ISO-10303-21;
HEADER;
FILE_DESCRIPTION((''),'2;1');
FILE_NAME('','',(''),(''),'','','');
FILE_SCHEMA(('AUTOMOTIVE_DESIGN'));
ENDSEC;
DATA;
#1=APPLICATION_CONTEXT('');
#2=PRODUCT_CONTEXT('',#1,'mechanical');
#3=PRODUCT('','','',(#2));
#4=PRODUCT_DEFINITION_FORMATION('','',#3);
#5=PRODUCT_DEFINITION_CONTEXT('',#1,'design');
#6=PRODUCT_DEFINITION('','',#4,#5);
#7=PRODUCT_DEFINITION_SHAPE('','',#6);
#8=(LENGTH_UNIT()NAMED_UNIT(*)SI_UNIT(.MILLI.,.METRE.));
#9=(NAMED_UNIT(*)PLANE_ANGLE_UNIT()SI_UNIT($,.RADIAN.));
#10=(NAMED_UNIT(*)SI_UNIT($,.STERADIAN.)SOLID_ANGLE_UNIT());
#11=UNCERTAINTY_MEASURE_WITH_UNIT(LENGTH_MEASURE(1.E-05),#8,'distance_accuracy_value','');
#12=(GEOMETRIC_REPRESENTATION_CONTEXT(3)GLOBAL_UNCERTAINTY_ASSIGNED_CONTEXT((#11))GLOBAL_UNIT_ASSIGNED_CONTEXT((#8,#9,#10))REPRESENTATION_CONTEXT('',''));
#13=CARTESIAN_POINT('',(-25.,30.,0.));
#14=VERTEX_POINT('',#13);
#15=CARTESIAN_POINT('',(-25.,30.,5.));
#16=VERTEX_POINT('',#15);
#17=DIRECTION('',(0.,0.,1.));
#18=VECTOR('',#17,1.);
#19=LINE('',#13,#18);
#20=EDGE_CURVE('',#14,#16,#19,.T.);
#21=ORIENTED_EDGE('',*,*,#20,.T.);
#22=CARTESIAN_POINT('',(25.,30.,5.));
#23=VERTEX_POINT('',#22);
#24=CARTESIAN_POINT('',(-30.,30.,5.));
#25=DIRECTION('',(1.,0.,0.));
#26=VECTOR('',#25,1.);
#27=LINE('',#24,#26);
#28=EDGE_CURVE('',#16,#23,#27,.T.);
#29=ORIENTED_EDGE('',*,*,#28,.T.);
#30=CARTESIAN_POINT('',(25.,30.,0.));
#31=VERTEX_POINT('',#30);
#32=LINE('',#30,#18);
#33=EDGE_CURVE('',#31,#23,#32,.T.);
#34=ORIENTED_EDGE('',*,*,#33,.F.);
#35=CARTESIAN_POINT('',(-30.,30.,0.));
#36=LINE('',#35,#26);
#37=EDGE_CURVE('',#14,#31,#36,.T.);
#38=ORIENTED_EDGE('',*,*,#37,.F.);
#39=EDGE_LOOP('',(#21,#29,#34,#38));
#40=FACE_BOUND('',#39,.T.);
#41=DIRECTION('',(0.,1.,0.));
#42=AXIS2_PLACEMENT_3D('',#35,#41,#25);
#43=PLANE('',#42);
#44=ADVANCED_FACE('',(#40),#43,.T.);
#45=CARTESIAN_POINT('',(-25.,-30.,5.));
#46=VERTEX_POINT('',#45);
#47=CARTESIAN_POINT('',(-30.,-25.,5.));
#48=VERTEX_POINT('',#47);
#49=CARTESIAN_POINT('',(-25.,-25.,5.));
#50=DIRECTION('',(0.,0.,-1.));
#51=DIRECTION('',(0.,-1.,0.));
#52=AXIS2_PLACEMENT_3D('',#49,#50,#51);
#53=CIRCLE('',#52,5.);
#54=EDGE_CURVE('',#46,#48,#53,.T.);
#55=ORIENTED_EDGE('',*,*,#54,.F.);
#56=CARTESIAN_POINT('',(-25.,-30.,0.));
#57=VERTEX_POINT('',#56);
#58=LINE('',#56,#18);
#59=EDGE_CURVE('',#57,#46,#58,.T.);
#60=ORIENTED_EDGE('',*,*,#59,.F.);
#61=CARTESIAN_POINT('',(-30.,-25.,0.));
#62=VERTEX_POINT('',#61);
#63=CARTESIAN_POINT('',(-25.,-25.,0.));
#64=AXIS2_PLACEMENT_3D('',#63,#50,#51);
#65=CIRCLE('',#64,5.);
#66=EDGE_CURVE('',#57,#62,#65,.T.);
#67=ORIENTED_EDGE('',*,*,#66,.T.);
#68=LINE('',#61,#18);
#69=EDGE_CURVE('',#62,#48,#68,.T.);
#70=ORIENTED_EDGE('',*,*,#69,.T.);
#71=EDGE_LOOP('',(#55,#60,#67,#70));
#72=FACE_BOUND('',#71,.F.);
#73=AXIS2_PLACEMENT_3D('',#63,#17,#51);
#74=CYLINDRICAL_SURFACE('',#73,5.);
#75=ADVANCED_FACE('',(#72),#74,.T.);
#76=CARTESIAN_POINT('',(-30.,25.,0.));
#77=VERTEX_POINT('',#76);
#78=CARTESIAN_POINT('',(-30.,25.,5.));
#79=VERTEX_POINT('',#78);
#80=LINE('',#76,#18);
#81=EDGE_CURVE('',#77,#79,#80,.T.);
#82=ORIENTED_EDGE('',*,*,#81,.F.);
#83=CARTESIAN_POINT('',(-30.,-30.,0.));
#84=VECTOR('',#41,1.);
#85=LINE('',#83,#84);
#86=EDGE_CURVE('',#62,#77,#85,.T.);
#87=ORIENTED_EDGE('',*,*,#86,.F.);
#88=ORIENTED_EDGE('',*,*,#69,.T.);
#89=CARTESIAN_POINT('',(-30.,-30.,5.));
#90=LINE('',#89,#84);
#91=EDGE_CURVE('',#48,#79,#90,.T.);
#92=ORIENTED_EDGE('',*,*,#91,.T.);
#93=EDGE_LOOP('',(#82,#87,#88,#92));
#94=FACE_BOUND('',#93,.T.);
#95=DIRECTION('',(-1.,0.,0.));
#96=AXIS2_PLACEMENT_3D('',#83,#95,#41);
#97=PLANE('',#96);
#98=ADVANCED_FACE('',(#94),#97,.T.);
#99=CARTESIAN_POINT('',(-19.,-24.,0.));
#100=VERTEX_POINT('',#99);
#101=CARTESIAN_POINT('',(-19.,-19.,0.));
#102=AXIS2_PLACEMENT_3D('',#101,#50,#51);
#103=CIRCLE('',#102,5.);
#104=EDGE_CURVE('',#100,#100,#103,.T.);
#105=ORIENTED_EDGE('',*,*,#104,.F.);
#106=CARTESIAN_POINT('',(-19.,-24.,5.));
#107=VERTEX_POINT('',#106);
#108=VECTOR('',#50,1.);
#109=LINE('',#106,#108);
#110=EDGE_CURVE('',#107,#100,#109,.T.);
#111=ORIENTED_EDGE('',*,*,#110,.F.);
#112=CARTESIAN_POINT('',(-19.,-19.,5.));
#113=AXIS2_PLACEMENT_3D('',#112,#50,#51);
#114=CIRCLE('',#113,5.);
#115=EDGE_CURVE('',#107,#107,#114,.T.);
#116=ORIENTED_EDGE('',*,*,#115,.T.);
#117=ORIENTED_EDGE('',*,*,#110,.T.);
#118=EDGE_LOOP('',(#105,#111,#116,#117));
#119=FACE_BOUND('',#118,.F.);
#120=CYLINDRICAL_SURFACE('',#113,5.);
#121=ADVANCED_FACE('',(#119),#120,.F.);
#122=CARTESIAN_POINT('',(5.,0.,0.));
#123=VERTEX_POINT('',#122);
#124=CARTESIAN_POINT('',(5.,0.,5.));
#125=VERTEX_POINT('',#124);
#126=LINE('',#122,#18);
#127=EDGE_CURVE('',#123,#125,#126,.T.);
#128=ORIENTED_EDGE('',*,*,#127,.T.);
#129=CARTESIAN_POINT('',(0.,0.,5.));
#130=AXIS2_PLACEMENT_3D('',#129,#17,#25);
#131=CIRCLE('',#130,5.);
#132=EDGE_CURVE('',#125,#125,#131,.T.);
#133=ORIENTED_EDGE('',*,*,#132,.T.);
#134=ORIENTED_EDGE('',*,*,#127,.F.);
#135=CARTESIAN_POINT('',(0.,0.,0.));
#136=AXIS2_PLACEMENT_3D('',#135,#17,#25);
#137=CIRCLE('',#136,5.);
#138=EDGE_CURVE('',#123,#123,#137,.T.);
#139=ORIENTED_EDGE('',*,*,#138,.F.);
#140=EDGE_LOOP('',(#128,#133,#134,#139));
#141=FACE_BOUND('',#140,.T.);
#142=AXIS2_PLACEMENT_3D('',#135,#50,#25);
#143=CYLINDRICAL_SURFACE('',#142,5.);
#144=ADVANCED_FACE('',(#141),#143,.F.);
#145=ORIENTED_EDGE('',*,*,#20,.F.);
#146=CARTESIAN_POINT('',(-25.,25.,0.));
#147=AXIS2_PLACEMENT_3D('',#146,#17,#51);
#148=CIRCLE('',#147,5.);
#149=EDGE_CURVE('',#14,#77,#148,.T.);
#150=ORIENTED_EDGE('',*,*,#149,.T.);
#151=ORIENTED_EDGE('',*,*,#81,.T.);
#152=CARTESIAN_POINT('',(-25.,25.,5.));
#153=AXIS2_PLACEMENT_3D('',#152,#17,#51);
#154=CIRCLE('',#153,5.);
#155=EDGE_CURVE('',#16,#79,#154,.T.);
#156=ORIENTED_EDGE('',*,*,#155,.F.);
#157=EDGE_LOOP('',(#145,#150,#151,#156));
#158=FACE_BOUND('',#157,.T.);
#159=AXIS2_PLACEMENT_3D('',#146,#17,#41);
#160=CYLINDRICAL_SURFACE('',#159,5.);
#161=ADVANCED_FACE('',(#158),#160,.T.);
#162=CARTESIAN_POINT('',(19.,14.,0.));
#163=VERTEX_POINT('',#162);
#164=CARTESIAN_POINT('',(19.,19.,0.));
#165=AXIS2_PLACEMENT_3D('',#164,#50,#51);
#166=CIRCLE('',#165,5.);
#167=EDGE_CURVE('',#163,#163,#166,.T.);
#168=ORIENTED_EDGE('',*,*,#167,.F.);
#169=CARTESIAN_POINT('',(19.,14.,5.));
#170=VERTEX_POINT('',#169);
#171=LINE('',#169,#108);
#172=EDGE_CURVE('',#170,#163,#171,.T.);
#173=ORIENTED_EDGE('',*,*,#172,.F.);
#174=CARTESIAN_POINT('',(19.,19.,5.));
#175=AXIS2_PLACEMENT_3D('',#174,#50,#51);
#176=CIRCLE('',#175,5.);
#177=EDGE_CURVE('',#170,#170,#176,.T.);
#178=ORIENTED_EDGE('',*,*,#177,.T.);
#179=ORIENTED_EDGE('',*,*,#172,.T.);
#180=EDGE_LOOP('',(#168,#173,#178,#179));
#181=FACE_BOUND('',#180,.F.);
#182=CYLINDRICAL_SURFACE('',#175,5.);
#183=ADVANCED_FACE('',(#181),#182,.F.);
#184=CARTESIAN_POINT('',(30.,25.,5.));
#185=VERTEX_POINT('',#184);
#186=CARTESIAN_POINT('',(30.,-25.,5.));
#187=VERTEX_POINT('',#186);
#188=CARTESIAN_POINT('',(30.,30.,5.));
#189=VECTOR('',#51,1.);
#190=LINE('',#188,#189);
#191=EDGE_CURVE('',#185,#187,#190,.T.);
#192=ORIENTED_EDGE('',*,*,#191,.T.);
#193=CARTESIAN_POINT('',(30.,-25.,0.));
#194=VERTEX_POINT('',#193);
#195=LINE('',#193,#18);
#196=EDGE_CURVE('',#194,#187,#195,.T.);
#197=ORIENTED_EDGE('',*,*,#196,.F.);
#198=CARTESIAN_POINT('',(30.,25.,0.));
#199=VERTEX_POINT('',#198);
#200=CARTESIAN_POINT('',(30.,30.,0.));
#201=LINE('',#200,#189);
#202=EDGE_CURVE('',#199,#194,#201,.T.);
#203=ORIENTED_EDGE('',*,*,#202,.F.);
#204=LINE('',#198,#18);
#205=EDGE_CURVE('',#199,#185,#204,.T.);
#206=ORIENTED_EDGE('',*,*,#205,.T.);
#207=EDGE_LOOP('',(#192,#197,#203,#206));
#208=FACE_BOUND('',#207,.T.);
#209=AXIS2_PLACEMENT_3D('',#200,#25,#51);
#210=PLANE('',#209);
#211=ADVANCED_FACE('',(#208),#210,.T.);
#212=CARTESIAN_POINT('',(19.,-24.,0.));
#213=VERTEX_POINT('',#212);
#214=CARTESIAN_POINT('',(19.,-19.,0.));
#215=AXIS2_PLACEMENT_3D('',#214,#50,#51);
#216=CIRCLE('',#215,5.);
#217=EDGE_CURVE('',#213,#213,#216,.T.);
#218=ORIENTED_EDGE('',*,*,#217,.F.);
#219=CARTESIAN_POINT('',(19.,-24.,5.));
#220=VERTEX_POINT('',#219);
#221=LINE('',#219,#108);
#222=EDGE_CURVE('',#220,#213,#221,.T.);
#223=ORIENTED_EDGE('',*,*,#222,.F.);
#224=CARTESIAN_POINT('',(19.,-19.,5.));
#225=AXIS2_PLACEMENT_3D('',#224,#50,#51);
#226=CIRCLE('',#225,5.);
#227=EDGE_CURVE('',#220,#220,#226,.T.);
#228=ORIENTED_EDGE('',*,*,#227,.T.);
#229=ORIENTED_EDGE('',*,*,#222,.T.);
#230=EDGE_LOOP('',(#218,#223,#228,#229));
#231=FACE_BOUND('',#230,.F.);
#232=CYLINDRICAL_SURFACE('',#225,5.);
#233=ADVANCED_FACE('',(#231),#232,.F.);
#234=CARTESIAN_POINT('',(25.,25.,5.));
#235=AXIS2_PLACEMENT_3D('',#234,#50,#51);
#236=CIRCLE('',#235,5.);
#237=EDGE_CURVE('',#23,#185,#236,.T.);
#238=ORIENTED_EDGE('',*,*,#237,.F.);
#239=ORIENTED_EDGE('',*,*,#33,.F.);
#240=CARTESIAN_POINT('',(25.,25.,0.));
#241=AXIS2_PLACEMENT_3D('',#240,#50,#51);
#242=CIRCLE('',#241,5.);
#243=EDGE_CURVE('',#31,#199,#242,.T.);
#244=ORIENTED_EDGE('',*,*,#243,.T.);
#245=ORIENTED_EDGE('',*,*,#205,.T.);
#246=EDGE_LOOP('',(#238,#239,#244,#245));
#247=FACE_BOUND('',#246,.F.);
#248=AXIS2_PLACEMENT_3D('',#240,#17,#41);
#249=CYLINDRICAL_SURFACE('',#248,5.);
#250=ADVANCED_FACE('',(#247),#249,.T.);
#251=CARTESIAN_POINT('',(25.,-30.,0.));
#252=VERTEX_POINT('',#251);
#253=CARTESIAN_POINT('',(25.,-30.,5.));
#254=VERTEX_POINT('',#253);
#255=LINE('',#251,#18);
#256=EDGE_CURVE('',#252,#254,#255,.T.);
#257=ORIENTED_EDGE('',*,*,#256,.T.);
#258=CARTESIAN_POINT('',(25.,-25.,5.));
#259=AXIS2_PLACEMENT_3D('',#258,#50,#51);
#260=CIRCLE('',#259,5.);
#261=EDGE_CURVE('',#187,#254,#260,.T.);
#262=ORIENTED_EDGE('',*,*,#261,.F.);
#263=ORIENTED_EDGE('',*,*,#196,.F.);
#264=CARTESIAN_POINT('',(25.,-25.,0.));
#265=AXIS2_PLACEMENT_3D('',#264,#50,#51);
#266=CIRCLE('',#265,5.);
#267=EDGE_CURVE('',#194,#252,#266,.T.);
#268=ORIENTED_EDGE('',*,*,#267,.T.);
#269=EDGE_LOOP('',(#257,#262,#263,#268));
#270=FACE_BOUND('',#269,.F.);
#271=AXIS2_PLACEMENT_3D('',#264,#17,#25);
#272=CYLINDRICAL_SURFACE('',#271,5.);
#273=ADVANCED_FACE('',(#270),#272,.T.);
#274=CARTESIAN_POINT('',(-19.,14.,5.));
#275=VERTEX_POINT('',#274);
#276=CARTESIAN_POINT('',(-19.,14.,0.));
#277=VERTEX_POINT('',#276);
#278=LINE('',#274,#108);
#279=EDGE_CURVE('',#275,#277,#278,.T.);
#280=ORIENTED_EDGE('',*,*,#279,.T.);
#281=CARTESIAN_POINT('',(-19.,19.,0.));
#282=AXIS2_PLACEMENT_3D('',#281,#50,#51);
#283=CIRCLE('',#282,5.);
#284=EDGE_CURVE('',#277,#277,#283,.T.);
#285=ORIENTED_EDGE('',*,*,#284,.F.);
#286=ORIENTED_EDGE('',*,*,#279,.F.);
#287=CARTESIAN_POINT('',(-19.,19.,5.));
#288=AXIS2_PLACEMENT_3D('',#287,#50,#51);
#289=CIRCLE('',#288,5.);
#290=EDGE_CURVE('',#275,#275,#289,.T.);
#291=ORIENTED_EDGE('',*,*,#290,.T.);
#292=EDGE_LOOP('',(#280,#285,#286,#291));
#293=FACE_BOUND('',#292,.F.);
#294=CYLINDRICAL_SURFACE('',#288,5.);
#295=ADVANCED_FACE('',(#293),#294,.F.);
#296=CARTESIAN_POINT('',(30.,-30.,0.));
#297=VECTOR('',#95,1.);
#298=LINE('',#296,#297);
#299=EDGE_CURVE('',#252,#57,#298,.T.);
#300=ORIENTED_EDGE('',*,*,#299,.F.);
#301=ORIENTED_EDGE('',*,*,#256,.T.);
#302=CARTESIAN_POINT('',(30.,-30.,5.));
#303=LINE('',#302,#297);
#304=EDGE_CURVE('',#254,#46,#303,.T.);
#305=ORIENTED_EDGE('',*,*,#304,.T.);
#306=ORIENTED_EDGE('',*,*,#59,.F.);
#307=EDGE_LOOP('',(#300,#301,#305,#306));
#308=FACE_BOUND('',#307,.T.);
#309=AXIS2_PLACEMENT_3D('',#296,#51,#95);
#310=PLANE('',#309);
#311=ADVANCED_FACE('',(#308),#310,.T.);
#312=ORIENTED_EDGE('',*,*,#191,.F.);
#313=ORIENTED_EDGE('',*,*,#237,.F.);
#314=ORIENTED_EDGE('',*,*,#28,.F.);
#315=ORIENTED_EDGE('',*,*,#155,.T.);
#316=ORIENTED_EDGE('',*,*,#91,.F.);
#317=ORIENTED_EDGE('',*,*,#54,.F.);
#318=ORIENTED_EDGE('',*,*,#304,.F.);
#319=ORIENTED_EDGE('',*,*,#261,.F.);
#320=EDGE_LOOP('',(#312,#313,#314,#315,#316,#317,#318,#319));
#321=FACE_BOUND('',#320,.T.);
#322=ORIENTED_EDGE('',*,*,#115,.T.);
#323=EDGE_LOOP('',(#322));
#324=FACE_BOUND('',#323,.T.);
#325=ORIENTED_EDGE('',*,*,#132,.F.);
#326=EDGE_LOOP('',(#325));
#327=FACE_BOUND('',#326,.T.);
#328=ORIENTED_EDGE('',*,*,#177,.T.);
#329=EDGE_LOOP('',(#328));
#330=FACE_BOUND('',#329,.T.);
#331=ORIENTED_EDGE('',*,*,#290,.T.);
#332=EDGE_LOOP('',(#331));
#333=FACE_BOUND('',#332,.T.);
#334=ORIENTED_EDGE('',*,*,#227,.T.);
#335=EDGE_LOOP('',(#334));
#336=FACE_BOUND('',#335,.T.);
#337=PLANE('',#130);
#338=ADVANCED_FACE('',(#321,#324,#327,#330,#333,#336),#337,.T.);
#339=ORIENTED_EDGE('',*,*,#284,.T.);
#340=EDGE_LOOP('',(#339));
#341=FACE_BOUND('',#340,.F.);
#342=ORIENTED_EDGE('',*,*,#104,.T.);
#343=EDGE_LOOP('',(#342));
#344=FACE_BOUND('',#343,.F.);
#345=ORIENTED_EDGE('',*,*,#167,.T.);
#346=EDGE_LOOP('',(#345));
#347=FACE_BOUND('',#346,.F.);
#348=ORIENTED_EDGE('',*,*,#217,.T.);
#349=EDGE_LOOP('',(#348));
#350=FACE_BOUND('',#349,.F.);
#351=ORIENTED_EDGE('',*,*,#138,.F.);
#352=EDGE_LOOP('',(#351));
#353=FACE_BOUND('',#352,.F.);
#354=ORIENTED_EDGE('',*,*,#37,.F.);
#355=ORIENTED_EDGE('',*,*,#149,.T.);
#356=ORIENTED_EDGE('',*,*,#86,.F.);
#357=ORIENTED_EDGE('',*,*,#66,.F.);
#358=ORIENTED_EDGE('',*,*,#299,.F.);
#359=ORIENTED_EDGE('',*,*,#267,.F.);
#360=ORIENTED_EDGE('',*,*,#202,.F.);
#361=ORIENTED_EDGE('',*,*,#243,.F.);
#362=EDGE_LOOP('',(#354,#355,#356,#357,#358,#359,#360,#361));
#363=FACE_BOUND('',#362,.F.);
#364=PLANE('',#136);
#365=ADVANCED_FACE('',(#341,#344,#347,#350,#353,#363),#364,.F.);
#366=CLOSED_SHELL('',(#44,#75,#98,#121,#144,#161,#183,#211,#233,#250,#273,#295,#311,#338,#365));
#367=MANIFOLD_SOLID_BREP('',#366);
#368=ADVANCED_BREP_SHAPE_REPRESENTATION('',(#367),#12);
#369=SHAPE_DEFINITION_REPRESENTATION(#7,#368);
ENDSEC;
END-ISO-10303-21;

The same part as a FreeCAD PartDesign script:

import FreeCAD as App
import Part
import Sketcher


def edges_at(feature, points):
    """Names of the edges that pass closest to the given points."""
    edges = feature.Shape.Edges
    near = lambda p: min(range(len(edges)), key=lambda i: edges[i].distToShape(Part.Vertex(*p))[0])
    return sorted({f"Edge{near(p) + 1}" for p in points})

doc = App.newDocument("Part")
body = doc.addObject("PartDesign::Body", "Body")

sketch1 = body.newObject("Sketcher::SketchObject", "Sketch")
sketch1.AttachmentSupport = (doc.getObject("XY_Plane"), [""])
sketch1.MapMode = "FlatFace"
sketch1.addGeometry([
    Part.LineSegment(App.Vector(30, 30, 0), App.Vector(-30, 30, 0)),
    Part.LineSegment(App.Vector(-30, 30, 0), App.Vector(-30, -30, 0)),
    Part.LineSegment(App.Vector(-30, -30, 0), App.Vector(30, -30, 0)),
    Part.LineSegment(App.Vector(30, -30, 0), App.Vector(30, 30, 0)),
    Part.Circle(App.Vector(0, 0, 0), App.Vector(0, 0, 1), 5),
], False)
sketch1.addConstraint([
    Sketcher.Constraint("Coincident", 0, 2, 1, 1),
    Sketcher.Constraint("Coincident", 1, 2, 2, 1),
    Sketcher.Constraint("Coincident", 2, 2, 3, 1),
    Sketcher.Constraint("Coincident", 3, 2, 0, 1),
    Sketcher.Constraint("Horizontal", 0),
    Sketcher.Constraint("Vertical", 1),
    Sketcher.Constraint("Horizontal", 2),
    Sketcher.Constraint("Vertical", 3),
    Sketcher.Constraint("Coincident", 4, 3, -1, 1),
    Sketcher.Constraint("Symmetric", 0, 2, 2, 2, -1, 1),
    Sketcher.Constraint("Equal", 2, 1),
    Sketcher.Constraint("Diameter", 4, 10.0),
    Sketcher.Constraint("DistanceX", 0, 2, 0, 1, 60.0),
])
pad1 = body.newObject("PartDesign::Pad", "Pad")
pad1.Profile = sketch1
pad1.Length = 5
doc.recompute()

fillet = body.newObject("PartDesign::Fillet", "Fillet")
fillet.Base = (pad1, edges_at(pad1, [
    (-30, 30, 2.5),
    (30, 30, 2.5),
    (30, -30, 2.5),
    (-30, -30, 2.5),
]))
fillet.Radius = 5

sketch2 = body.newObject("Sketcher::SketchObject", "Sketch001")
sketch2.AttachmentSupport = (doc.getObject("XY_Plane"), [""])
sketch2.MapMode = "FlatFace"
sketch2.AttachmentOffset = App.Placement(App.Vector(0, 0, 5), App.Rotation())
sketch2.addGeometry([
    Part.Circle(App.Vector(19, -19, 0), App.Vector(0, 0, 1), 5),
    Part.Circle(App.Vector(19, 19, 0), App.Vector(0, 0, 1), 5),
    Part.Circle(App.Vector(-19, 19, 0), App.Vector(0, 0, 1), 5),
    Part.Circle(App.Vector(-19, -19, 0), App.Vector(0, 0, 1), 5),
], False)
sketch2.addConstraint([
    Sketcher.Constraint("Equal", 0, 1),
    Sketcher.Constraint("Equal", 1, 2),
    Sketcher.Constraint("Equal", 2, 3),
    Sketcher.Constraint("Symmetric", 0, 3, 2, 3, -1, 1),
    Sketcher.Constraint("Symmetric", 1, 3, 3, 3, -1, 1),
    Sketcher.Constraint("Symmetric", 1, 3, 2, 3, -2),
    Sketcher.Constraint("Diameter", 0, 10.0),
    Sketcher.Constraint("DistanceX", -1, 1, 0, 3, 19.0),
    Sketcher.Constraint("DistanceY", 0, 3, -1, 1, 19.0),
])
doc.recompute()
hole = body.newObject("PartDesign::Hole", "Hole")
hole.Profile = sketch2
hole.ThreadType = "None"
hole.Diameter = 10
hole.DepthType = "ThroughAll"

doc.recompute()
